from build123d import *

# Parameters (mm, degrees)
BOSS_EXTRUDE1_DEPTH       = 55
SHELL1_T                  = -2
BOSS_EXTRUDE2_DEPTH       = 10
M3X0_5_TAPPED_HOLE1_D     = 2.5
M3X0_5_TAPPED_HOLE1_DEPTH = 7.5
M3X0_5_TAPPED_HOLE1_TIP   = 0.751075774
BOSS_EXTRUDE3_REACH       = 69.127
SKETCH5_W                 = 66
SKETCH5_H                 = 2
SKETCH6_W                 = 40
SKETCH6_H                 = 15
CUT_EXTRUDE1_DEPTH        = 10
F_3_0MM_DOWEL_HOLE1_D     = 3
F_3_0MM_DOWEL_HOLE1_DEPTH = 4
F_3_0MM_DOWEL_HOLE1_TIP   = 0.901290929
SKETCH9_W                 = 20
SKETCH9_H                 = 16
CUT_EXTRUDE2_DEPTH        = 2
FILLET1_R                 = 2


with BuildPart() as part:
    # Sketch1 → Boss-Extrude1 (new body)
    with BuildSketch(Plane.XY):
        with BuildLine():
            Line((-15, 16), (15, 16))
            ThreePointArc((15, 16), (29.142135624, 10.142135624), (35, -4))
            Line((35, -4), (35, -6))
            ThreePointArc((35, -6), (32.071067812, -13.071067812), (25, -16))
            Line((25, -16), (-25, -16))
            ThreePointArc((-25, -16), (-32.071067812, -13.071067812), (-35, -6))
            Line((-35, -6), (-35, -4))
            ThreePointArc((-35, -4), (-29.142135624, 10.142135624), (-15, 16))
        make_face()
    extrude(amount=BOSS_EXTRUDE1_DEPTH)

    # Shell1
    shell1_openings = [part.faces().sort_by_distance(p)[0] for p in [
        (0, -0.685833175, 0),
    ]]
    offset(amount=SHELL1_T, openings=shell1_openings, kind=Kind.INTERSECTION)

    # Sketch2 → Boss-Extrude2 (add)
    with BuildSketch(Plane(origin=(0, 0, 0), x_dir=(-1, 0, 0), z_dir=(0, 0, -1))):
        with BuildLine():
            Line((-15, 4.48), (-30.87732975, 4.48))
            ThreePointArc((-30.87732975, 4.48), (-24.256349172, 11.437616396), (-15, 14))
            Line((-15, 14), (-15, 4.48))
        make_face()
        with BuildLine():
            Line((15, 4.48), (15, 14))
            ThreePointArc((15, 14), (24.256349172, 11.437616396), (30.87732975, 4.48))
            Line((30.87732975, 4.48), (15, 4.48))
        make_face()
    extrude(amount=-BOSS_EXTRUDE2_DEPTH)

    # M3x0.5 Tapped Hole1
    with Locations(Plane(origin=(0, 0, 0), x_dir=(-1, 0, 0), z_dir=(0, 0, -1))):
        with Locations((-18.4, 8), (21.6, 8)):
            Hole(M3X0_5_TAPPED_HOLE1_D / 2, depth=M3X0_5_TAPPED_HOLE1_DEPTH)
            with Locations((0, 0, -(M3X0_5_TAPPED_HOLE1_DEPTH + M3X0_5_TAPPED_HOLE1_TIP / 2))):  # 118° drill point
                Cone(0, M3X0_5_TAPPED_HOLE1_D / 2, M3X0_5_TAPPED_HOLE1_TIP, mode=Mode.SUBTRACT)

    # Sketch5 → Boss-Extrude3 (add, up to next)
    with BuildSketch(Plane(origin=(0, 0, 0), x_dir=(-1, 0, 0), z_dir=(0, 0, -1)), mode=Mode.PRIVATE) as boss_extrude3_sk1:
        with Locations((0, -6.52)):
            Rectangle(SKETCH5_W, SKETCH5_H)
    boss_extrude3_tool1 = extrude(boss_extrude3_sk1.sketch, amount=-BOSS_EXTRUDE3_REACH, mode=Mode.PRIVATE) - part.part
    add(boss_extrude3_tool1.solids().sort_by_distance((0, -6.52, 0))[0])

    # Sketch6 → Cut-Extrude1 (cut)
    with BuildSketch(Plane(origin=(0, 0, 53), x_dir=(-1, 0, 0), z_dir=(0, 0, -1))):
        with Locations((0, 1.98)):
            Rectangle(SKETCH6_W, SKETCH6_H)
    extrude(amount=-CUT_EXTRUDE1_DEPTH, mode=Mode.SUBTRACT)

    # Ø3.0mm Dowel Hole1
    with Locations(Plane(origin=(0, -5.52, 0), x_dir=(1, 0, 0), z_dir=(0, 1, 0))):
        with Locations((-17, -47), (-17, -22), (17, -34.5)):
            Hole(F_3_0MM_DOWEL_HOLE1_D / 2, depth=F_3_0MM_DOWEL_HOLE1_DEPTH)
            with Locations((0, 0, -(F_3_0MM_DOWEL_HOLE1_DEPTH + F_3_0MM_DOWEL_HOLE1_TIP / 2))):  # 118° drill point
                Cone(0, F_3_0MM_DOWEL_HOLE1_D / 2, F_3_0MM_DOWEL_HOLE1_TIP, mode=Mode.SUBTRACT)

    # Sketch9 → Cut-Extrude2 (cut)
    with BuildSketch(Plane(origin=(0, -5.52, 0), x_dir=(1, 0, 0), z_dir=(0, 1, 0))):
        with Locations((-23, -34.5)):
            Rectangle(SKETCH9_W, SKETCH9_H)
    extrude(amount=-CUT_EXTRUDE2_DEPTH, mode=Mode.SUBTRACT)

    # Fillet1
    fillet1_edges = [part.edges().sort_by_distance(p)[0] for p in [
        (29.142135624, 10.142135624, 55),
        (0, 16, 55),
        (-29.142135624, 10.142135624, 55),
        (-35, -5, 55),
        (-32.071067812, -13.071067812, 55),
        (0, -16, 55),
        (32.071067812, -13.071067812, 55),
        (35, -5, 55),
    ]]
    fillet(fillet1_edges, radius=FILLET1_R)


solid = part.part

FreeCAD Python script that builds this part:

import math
import FreeCAD as App
import Part
import Sketcher

V = App.Vector
Q = App.Units.Quantity


def edges_at(feature, points):
    """Names of the edges that pass closest to the given points."""
    edges = feature.Shape.Edges
    near = lambda p: min(range(len(edges)), key=lambda i: edges[i].distToShape(Part.Vertex(*p))[0])
    return sorted({f"Edge{near(p) + 1}" for p in points})


def faces_at(feature, points):
    """Names of the faces that lie closest to the given points."""
    faces = feature.Shape.Faces
    near = lambda p: min(range(len(faces)), key=lambda i: faces[i].distToShape(Part.Vertex(*p))[0])
    return sorted({f"Face{near(p) + 1}" for p in points})


def add_polygon(sketch, points):
    """Adds a closed chain of lines whose ends are joined by coincident constraints."""
    first, n = sketch.GeometryCount, len(points)
    for a, b in zip(points, points[1:] + points[:1]):
        sketch.addGeometry(Part.LineSegment(App.Vector(*a, 0), App.Vector(*b, 0)), False)
    for i in range(n):
        sketch.addConstraint(Sketcher.Constraint("Coincident", first + i, 2, first + (i + 1) % n, 1))

doc = App.newDocument("Part")
body = doc.addObject("PartDesign::Body", "Body")

# Sketch on XY plane
sketch1 = body.newObject("Sketcher::SketchObject", "Sketch")
sketch1.AttachmentSupport = (doc.getObject("XY_Plane"), [""])
sketch1.MapMode = "FlatFace"
sketch1.addGeometry([
    Part.LineSegment(V(15, 16, 0), V(-15, 16, 0)),  # 0
    Part.ArcOfCircle(Part.Circle(V(-15, -4, 0), V(0, 0, 1), 20), math.radians(90), math.radians(180)),  # 1
    Part.LineSegment(V(-35, -4, 0), V(-35, -6, 0)),  # 2
    Part.ArcOfCircle(Part.Circle(V(-25, -6, 0), V(0, 0, 1), 10), math.radians(180), math.radians(270)),  # 3
    Part.LineSegment(V(-25, -16, 0), V(25, -16, 0)),  # 4
    Part.ArcOfCircle(Part.Circle(V(25, -6, 0), V(0, 0, 1), 10), math.radians(-90), math.radians(0)),  # 5
    Part.LineSegment(V(35, -6, 0), V(35, -4, 0)),  # 6
    Part.ArcOfCircle(Part.Circle(V(15, -4, 0), V(0, 0, 1), 20), math.radians(0), math.radians(90)),  # 7
], False)
sketch1.addConstraint([
    Sketcher.Constraint("Tangent", 0, 2, 1, 1),
    Sketcher.Constraint("Tangent", 1, 2, 2, 1),
    Sketcher.Constraint("Tangent", 2, 2, 3, 1),
    Sketcher.Constraint("Tangent", 3, 2, 4, 1),
    Sketcher.Constraint("Tangent", 4, 2, 5, 1),
    Sketcher.Constraint("Tangent", 5, 2, 6, 1),
    Sketcher.Constraint("Tangent", 6, 2, 7, 1),
    Sketcher.Constraint("Tangent", 7, 2, 0, 1),
    Sketcher.Constraint("Horizontal", 0),
    Sketcher.Constraint("Vertical", 2),
    Sketcher.Constraint("Horizontal", 4),
    Sketcher.Constraint("Vertical", 6),
    Sketcher.Constraint("Equal", 3, 5),
    Sketcher.Constraint("Equal", 1, 7),
    Sketcher.Constraint("Radius", 1, Q("20 mm")),
    Sketcher.Constraint("Radius", 3, Q("10 mm")),
    Sketcher.Constraint("DistanceX", 0, 2, 0, 1, Q("30 mm")),
    Sketcher.Constraint("DistanceY", 2, 2, 2, 1, Q("2 mm")),
    Sketcher.Constraint("DistanceX", 1, 3, -1, 1, Q("15 mm")),
    Sketcher.Constraint("DistanceY", 1, 3, -1, 1, Q("4 mm")),
])
pad1 = body.newObject("PartDesign::Pad", "Pad")
pad1.Profile = sketch1
pad1.Length = 55
doc.recompute()

thickness = body.newObject("PartDesign::Thickness", "Thickness")
thickness.Base = (pad1, faces_at(pad1, [(0, 0, 0)]))
thickness.Value = 2
thickness.Reversed = True
thickness.Join = "Intersection"

# Sketch on XY plane
sketch2 = body.newObject("Sketcher::SketchObject", "Sketch001")
sketch2.AttachmentSupport = (doc.getObject("XY_Plane"), [""])
sketch2.MapMode = "FlatFace"
sketch2.addGeometry([
    Part.LineSegment(V(30.87733, 4.48, 0), V(15, 4.48, 0)),  # 0
    Part.LineSegment(V(15, 4.48, 0), V(15, 14, 0)),  # 1
    Part.ArcOfCircle(Part.Circle(V(15, -4, 0), V(0, 0, 1), 18), math.radians(28.106445), math.radians(90)),  # 2
    Part.LineSegment(V(-15, 14, 0), V(-15, 4.48, 0)),  # 3
    Part.LineSegment(V(-15, 4.48, 0), V(-30.87733, 4.48, 0)),  # 4
    Part.ArcOfCircle(Part.Circle(V(-15, -4, 0), V(0, 0, 1), 18), math.radians(90), math.radians(151.893555)),  # 5
], False)
sketch2.addConstraint([
    Sketcher.Constraint("Coincident", 0, 2, 1, 1),
    Sketcher.Constraint("Coincident", 1, 2, 2, 2),
    Sketcher.Constraint("Coincident", 2, 1, 0, 1),
    Sketcher.Constraint("Coincident", 3, 2, 4, 1),
    Sketcher.Constraint("Coincident", 4, 2, 5, 2),
    Sketcher.Constraint("Coincident", 5, 1, 3, 1),
    Sketcher.Constraint("Horizontal", 0),
    Sketcher.Constraint("Vertical", 1),
    Sketcher.Constraint("Vertical", 3),
    Sketcher.Constraint("Horizontal", 4),
    Sketcher.Constraint("Equal", 2, 5),
    Sketcher.Constraint("Symmetric", 2, 3, 5, 3, -2),
    Sketcher.Constraint("Symmetric", 0, 2, 3, 2, -2),
    Sketcher.Constraint("Vertical", 2, 3, 0, 2),
    Sketcher.Constraint("Radius", 2, Q("18 mm")),
    Sketcher.Constraint("DistanceX", -1, 1, 2, 3, Q("15 mm")),
    Sketcher.Constraint("DistanceY", 2, 3, -1, 1, Q("4 mm")),
    Sketcher.Constraint("DistanceY", 1, 1, 1, 2, Q("9.52 mm")),
])
pad2 = body.newObject("PartDesign::Pad", "Pad001")
pad2.Profile = sketch2
pad2.Length = 10

# Sketch on XY plane
sketch3 = body.newObject("Sketcher::SketchObject", "Sketch002")
sketch3.AttachmentSupport = (doc.getObject("XY_Plane"), [""])
sketch3.MapMode = "FlatFace"
sketch3.addGeometry([
    Part.Circle(V(18.4, 8, 0), V(0, 0, 1), 1.25),
    Part.Circle(V(-21.6, 8, 0), V(0, 0, 1), 1.25),
], False)
sketch3.addConstraint([
    Sketcher.Constraint("Equal", 0, 1),
    Sketcher.Constraint("Horizontal", 0, 3, 1, 3),
    Sketcher.Constraint("Diameter", 0, Q("2.5 mm")),
    Sketcher.Constraint("DistanceY", -1, 1, 0, 3, Q("8 mm")),
    Sketcher.Constraint("DistanceX", 1, 3, 0, 3, Q("40 mm")),
    Sketcher.Constraint("DistanceX", -1, 1, 0, 3, Q("18.4 mm")),
])
doc.recompute()
hole = body.newObject("PartDesign::Hole", "Hole")
hole.Profile = sketch3
hole.ThreadType = "None"
hole.Diameter = 2.5
hole.DepthType = "Dimension"
hole.Depth = 7.5
hole.DrillPoint = "Angled"
hole.DrillPointAngle = 118
hole.Reversed = True

# Sketch on XY plane
sketch4 = body.newObject("Sketcher::SketchObject", "Sketch003")
sketch4.AttachmentSupport = (doc.getObject("XY_Plane"), [""])
sketch4.MapMode = "FlatFace"
add_polygon(sketch4, [(33, -5.52), (33, -7.52), (-33, -7.52), (-33, -5.52)])  # lines 0-3
sketch4.addConstraint([
    Sketcher.Constraint("Vertical", 0),
    Sketcher.Constraint("Horizontal", 1),
    Sketcher.Constraint("Vertical", 2),
    Sketcher.Constraint("Horizontal", 3),
    Sketcher.Constraint("DistanceX", 1, 2, 1, 1, Q("66 mm")),
    Sketcher.Constraint("DistanceY", 0, 2, 0, 1, Q("2 mm")),
    Sketcher.Constraint("DistanceX", -1, 1, 0, 2, Q("33 mm")),
    Sketcher.Constraint("DistanceY", 0, 2, -1, 1, Q("7.52 mm")),
])
pad3 = body.newObject("PartDesign::Pad", "Pad002")
pad3.Profile = sketch4
pad3.Type = "UpToFirst"

# Sketch on XY plane
sketch5 = body.newObject("Sketcher::SketchObject", "Sketch004")
sketch5.AttachmentSupport = (doc.getObject("XY_Plane"), [""])
sketch5.MapMode = "FlatFace"
sketch5.AttachmentOffset = App.Placement(V(0, 0, 53), App.Rotation())
add_polygon(sketch5, [(20, 9.48), (20, -5.52), (-20, -5.52), (-20, 9.48)])  # lines 0-3
sketch5.addConstraint([
    Sketcher.Constraint("Vertical", 0),
    Sketcher.Constraint("Horizontal", 1),
    Sketcher.Constraint("Vertical", 2),
    Sketcher.Constraint("Horizontal", 3),
    Sketcher.Constraint("DistanceX", 1, 2, 1, 1, Q("40 mm")),
    Sketcher.Constraint("DistanceY", 0, 2, 0, 1, Q("15 mm")),
    Sketcher.Constraint("DistanceX", -1, 1, 0, 2, Q("20 mm")),
    Sketcher.Constraint("DistanceY", 0, 2, -1, 1, Q("5.52 mm")),
])
pocket1 = body.newObject("PartDesign::Pocket", "Pocket")
pocket1.Profile = sketch5
pocket1.Length = 10
pocket1.Reversed = True

# Sketch on XZ plane
sketch6 = body.newObject("Sketcher::SketchObject", "Sketch005")
sketch6.AttachmentSupport = (doc.getObject("XZ_Plane"), [""])
sketch6.MapMode = "FlatFace"
sketch6.AttachmentOffset = App.Placement(V(0, 0, 5.52), App.Rotation())
sketch6.addGeometry([
    Part.Circle(V(-17, 47, 0), V(0, 0, 1), 1.5),
    Part.Circle(V(-17, 22, 0), V(0, 0, 1), 1.5),
    Part.Circle(V(17, 34.5, 0), V(0, 0, 1), 1.5),
], False)
sketch6.addConstraint([
    Sketcher.Constraint("Equal", 0, 1),
    Sketcher.Constraint("Equal", 1, 2),
    Sketcher.Constraint("Vertical", 0, 3, 1, 3),
    Sketcher.Constraint("Diameter", 0, Q("3 mm")),
    Sketcher.Constraint("DistanceX", 0, 3, -1, 1, Q("17 mm")),
    Sketcher.Constraint("DistanceY", -1, 1, 0, 3, Q("47 mm")),
    Sketcher.Constraint("DistanceY", -1, 1, 1, 3, Q("22 mm")),
    Sketcher.Constraint("DistanceX", -1, 1, 2, 3, Q("17 mm")),
    Sketcher.Constraint("DistanceY", -1, 1, 2, 3, Q("34.5 mm")),
])
doc.recompute()
hole2 = body.newObject("PartDesign::Hole", "Hole001")
hole2.Profile = sketch6
hole2.ThreadType = "None"
hole2.Diameter = 3
hole2.DepthType = "Dimension"
hole2.Depth = 4
hole2.DrillPoint = "Angled"
hole2.DrillPointAngle = 118
hole2.Reversed = True

# Sketch on XZ plane
sketch7 = body.newObject("Sketcher::SketchObject", "Sketch006")
sketch7.AttachmentSupport = (doc.getObject("XZ_Plane"), [""])
sketch7.MapMode = "FlatFace"
sketch7.AttachmentOffset = App.Placement(V(0, 0, 5.52), App.Rotation())
add_polygon(sketch7, [(-33, 26.5), (-33, 42.5), (-13, 42.5), (-13, 26.5)])  # lines 0-3
sketch7.addConstraint([
    Sketcher.Constraint("Vertical", 0),
    Sketcher.Constraint("Horizontal", 1),
    Sketcher.Constraint("Vertical", 2),
    Sketcher.Constraint("Horizontal", 3),
    Sketcher.Constraint("DistanceX", 1, 1, 1, 2, Q("20 mm")),
    Sketcher.Constraint("DistanceY", 0, 1, 0, 2, Q("16 mm")),
    Sketcher.Constraint("DistanceX", 0, 2, -1, 1, Q("33 mm")),
    Sketcher.Constraint("DistanceY", -1, 1, 0, 2, Q("42.5 mm")),
])
pocket2 = body.newObject("PartDesign::Pocket", "Pocket001")
pocket2.Profile = sketch7
pocket2.Length = 2
pocket2.Reversed = True
doc.recompute()

fillet = body.newObject("PartDesign::Fillet", "Fillet")
fillet.Base = (pocket2, edges_at(pocket2, [
    (29.142, 10.142, 55),
    (0, 16, 55),
    (-29.142, 10.142, 55),
    (-35, -5, 55),
    (-32.071, -13.071, 55),
    (0, -16, 55),
    (32.071, -13.071, 55),
    (35, -5, 55),
]))
fillet.Radius = 2

doc.recompute()
